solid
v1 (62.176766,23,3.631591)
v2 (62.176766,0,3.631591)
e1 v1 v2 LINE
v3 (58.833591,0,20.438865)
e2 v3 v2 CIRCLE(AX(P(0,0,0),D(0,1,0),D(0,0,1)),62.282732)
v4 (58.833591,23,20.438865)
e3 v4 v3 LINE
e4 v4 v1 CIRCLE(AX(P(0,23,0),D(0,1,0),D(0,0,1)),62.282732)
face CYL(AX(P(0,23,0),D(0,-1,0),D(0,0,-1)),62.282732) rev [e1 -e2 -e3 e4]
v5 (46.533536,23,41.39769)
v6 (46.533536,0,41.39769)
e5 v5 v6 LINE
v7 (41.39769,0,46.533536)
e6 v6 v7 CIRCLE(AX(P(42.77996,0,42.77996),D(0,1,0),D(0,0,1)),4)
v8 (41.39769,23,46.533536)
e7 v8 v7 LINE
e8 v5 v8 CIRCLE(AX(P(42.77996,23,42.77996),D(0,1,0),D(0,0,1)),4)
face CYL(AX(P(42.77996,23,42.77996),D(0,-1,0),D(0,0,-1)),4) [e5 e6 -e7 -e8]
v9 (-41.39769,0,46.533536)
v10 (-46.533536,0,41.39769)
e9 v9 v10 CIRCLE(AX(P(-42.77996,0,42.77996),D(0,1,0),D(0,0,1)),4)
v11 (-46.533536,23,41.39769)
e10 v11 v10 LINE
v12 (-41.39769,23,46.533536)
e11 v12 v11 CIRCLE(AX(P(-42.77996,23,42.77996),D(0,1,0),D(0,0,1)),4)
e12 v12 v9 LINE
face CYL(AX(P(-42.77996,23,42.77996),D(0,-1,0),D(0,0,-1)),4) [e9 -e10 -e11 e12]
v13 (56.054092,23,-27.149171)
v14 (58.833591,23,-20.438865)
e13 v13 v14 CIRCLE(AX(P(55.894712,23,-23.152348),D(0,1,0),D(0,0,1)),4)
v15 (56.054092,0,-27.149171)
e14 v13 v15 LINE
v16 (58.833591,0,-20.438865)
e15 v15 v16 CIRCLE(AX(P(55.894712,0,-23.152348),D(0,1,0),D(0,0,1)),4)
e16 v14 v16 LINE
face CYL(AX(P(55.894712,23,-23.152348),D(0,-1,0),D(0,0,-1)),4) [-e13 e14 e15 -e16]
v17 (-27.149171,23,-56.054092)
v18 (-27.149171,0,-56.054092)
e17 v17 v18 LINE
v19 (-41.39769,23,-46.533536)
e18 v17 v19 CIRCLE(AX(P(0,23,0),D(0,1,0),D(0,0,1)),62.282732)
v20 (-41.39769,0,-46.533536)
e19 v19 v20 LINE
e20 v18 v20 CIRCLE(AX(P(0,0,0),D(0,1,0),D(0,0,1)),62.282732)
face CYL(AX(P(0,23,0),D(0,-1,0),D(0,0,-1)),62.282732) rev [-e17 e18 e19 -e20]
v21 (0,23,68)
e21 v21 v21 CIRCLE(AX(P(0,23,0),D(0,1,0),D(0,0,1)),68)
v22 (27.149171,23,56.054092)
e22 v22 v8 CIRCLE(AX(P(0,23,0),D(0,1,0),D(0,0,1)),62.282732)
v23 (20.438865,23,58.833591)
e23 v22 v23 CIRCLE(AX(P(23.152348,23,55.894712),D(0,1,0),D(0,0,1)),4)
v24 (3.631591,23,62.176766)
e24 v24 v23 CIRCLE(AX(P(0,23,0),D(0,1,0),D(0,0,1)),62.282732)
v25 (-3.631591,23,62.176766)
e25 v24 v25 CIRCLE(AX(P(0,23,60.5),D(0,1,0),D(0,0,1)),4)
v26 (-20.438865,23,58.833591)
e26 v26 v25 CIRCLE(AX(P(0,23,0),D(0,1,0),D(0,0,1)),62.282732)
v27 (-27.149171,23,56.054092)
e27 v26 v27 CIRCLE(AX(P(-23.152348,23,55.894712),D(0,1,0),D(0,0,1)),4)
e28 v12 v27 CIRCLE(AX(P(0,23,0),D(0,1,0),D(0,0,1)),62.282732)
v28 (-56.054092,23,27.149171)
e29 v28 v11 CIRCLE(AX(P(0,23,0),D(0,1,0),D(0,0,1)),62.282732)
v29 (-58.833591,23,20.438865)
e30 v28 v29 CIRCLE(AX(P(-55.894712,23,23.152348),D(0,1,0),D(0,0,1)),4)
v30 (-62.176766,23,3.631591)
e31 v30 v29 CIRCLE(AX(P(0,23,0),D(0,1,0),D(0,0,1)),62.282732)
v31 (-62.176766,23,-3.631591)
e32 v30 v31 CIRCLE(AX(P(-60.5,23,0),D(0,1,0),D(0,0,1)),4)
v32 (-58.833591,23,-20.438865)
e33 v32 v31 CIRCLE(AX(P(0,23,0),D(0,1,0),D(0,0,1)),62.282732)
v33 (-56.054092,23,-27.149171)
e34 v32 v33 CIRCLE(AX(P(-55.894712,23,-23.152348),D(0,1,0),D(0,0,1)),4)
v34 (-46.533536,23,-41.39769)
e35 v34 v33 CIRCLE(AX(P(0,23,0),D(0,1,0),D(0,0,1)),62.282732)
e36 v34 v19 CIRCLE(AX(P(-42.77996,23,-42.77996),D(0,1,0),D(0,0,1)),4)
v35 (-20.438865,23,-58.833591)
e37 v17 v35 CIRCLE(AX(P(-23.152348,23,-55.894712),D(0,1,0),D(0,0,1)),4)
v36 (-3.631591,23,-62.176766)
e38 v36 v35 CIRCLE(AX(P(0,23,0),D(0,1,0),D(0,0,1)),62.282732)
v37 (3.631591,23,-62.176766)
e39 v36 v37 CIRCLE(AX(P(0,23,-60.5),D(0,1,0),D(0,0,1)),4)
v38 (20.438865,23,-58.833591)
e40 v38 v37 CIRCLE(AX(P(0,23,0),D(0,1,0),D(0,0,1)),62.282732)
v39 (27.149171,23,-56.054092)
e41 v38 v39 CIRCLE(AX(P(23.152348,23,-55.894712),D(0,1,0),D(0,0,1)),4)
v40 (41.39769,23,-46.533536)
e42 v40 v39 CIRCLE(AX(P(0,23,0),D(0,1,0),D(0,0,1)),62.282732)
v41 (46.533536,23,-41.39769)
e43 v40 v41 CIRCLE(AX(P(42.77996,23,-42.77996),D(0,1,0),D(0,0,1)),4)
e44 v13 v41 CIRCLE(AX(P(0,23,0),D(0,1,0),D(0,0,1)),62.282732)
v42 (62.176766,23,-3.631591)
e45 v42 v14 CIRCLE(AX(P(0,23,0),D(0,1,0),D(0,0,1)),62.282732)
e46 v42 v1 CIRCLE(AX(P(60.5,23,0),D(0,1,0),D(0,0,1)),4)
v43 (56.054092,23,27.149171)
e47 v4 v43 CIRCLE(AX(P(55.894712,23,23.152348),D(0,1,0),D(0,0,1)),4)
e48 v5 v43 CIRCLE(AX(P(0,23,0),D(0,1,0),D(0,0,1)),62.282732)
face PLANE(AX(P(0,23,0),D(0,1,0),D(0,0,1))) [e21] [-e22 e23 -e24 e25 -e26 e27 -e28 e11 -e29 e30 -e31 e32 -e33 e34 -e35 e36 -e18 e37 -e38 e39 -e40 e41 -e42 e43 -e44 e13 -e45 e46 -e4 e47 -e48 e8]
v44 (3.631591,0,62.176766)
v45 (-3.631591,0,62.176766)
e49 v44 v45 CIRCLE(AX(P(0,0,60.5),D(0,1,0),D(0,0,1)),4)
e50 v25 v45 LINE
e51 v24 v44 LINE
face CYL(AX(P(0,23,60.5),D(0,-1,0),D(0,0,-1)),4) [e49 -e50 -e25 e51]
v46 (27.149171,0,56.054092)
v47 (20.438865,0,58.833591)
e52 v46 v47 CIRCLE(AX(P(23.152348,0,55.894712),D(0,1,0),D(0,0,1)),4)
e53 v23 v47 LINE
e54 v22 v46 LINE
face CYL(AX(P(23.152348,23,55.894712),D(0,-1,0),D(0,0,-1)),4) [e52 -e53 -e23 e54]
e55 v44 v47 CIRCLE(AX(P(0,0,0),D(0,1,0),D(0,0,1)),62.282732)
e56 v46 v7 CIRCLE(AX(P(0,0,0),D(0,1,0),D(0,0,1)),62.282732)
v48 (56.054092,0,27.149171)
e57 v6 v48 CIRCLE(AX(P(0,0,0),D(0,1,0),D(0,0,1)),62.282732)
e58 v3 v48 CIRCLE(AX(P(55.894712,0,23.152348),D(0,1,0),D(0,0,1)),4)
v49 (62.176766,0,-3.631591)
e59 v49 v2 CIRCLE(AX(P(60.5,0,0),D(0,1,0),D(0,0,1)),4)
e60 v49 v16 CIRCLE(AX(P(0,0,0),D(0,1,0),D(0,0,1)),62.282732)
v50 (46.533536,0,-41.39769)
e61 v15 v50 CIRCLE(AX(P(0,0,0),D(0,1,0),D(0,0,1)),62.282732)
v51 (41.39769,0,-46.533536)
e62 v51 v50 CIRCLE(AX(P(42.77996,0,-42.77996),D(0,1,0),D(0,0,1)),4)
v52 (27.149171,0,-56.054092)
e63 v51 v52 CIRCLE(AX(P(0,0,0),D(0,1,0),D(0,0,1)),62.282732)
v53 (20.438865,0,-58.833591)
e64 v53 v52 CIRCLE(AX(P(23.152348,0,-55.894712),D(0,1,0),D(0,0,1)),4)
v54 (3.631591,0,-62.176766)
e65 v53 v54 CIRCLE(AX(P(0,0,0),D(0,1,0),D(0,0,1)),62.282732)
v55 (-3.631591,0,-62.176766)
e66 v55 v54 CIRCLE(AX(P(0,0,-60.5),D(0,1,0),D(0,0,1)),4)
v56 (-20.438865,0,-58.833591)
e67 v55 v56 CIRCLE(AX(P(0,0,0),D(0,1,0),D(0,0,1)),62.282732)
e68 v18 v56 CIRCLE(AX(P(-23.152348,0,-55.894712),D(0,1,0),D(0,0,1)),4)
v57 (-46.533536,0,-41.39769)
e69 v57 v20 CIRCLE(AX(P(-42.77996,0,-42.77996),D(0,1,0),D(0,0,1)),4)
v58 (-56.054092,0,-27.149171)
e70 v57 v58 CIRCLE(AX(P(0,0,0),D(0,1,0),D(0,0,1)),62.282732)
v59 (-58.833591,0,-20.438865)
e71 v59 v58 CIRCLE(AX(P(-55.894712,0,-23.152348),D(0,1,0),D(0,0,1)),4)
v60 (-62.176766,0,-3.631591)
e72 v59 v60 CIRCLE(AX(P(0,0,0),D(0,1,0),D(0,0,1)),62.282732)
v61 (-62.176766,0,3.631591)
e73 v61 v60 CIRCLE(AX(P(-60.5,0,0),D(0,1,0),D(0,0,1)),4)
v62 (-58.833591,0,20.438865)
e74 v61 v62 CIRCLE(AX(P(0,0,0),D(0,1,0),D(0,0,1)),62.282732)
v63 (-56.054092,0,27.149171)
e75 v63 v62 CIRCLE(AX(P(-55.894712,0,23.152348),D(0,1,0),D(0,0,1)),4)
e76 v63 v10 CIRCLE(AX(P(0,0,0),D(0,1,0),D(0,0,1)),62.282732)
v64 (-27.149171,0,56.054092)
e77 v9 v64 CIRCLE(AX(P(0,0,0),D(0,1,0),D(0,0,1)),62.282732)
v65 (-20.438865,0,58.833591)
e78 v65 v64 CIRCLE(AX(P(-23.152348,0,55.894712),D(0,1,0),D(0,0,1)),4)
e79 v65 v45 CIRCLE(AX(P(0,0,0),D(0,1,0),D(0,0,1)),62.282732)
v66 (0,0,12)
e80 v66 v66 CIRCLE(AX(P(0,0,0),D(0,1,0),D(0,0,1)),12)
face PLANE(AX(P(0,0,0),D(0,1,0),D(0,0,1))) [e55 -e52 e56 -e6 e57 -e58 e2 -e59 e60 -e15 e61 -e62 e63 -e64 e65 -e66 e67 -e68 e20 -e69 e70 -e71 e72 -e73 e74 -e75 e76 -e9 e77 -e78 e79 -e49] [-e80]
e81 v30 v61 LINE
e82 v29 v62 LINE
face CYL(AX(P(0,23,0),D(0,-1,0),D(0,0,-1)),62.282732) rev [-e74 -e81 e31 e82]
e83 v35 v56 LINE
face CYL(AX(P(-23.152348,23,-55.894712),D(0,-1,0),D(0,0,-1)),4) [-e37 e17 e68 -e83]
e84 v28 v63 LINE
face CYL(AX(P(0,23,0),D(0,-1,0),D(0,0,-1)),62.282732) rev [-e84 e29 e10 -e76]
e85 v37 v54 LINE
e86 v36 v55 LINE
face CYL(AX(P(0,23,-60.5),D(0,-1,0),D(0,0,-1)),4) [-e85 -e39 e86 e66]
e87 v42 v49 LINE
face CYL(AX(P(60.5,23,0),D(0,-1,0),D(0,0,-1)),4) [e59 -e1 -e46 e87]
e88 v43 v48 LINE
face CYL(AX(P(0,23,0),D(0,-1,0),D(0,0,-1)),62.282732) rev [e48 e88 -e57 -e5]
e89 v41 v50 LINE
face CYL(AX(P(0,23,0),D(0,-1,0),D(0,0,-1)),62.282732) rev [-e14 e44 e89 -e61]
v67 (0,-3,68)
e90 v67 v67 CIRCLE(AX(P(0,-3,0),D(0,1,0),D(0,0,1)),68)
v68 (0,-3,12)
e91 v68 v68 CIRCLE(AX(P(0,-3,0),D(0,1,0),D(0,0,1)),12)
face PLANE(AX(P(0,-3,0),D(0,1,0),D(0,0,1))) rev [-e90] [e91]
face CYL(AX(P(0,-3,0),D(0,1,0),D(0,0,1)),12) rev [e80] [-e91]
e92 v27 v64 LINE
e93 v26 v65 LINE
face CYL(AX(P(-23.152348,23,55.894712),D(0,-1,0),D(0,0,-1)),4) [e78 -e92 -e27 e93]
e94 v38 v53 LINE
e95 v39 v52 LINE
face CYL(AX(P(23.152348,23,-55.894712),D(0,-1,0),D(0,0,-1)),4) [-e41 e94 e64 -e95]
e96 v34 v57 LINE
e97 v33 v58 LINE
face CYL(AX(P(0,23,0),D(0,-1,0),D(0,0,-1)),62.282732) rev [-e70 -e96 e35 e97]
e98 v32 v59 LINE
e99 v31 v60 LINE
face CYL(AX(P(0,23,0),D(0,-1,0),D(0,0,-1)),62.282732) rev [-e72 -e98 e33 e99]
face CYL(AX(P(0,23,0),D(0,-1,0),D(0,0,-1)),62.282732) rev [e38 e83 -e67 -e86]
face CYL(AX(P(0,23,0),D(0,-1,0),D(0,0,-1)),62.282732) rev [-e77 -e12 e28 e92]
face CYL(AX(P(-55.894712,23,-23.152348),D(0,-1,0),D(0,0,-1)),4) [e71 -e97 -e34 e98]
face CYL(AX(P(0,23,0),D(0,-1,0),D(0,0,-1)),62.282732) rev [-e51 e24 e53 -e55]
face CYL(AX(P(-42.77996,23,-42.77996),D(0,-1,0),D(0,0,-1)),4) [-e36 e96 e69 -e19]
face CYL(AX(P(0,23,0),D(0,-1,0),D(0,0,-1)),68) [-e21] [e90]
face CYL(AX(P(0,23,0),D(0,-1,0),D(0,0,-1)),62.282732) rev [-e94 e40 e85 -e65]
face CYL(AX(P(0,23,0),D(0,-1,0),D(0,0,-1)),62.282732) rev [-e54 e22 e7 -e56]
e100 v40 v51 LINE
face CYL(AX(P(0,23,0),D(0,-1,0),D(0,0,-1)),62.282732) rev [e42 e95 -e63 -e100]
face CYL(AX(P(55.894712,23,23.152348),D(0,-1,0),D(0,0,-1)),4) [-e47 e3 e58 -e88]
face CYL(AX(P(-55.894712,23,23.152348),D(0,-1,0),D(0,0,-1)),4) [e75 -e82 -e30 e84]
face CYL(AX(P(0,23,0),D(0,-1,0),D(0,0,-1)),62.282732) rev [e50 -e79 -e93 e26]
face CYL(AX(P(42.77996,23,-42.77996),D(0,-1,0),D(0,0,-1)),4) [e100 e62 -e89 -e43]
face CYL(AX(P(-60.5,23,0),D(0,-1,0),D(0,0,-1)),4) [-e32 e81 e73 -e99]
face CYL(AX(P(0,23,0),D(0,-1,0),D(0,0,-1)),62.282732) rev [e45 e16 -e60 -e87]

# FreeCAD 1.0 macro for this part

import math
import FreeCAD as App
import Part
import Sketcher

V = App.Vector
Q = App.Units.Quantity

doc = App.newDocument("Part")
body = doc.addObject("PartDesign::Body", "Body")

# Sketch on XZ plane
sketch1 = doc.addObject("Sketcher::SketchObject", "Sketch")
body.addObject(sketch1)
sketch1.AttachmentSupport = (doc.XZ_Plane, [""])
sketch1.MapMode = "FlatFace"
sketch1.addGeometry([
    Part.Circle(V(0, 0, 0), V(0, 0, 1), 68),  # 0
    Part.ArcOfCircle(Part.Circle(V(0, -60.5, 0), V(0, 0, 1), 4), math.radians(-25), math.radians(205)),  # 1
    Part.ArcOfCircle(Part.Circle(V(0, 0, 0), V(0, 0, 1), 62.3), math.radians(-86.66), math.radians(-70.84)),  # 2
    Part.ArcOfCircle(Part.Circle(V(23.2, -55.9, 0), V(0, 0, 1), 4), math.radians(-2), math.radians(227)),  # 3
    Part.ArcOfCircle(Part.Circle(V(0, 0, 0), V(0, 0, 1), 62.3), math.radians(-64.16), math.radians(-48.34)),  # 4
    Part.ArcOfCircle(Part.Circle(V(42.8, -42.8, 0), V(0, 0, 1), 4), math.radians(20), math.radians(250)),  # 5
    Part.ArcOfCircle(Part.Circle(V(0, 0, 0), V(0, 0, 1), 62.3), math.radians(-41.66), math.radians(-25.84)),  # 6
    Part.ArcOfCircle(Part.Circle(V(55.9, -23.2, 0), V(0, 0, 1), 4), math.radians(43), math.radians(272)),  # 7
    Part.ArcOfCircle(Part.Circle(V(0, 0, 0), V(0, 0, 1), 62.3), math.radians(-19.16), math.radians(-3.34)),  # 8
    Part.ArcOfCircle(Part.Circle(V(60.5, 0, 0), V(0, 0, 1), 4), math.radians(65), math.radians(295)),  # 9
    Part.ArcOfCircle(Part.Circle(V(0, 0, 0), V(0, 0, 1), 62.3), math.radians(3.34), math.radians(19.16)),  # 10
    Part.ArcOfCircle(Part.Circle(V(55.9, 23.2, 0), V(0, 0, 1), 4), math.radians(88), math.radians(317)),  # 11
    Part.ArcOfCircle(Part.Circle(V(0, 0, 0), V(0, 0, 1), 62.3), math.radians(25.84), math.radians(41.66)),  # 12
    Part.ArcOfCircle(Part.Circle(V(42.8, 42.8, 0), V(0, 0, 1), 4), math.radians(110), math.radians(340)),  # 13
    Part.ArcOfCircle(Part.Circle(V(0, 0, 0), V(0, 0, 1), 62.3), math.radians(48.34), math.radians(64.16)),  # 14
    Part.ArcOfCircle(Part.Circle(V(23.2, 55.9, 0), V(0, 0, 1), 4), math.radians(133), math.radians(362)),  # 15
    Part.ArcOfCircle(Part.Circle(V(0, 0, 0), V(0, 0, 1), 62.3), math.radians(70.84), math.radians(86.66)),  # 16
    Part.ArcOfCircle(Part.Circle(V(0, 60.5, 0), V(0, 0, 1), 4), math.radians(155), math.radians(385)),  # 17
    Part.ArcOfCircle(Part.Circle(V(0, 0, 0), V(0, 0, 1), 62.3), math.radians(93.34), math.radians(109.16)),  # 18
    Part.ArcOfCircle(Part.Circle(V(-23.2, 55.9, 0), V(0, 0, 1), 4), math.radians(178), math.radians(407)),  # 19
    Part.ArcOfCircle(Part.Circle(V(0, 0, 0), V(0, 0, 1), 62.3), math.radians(115.84), math.radians(131.66)),  # 20
    Part.ArcOfCircle(Part.Circle(V(-42.8, 42.8, 0), V(0, 0, 1), 4), math.radians(-160), math.radians(70)),  # 21
    Part.ArcOfCircle(Part.Circle(V(0, 0, 0), V(0, 0, 1), 62.3), math.radians(138.34), math.radians(154.16)),  # 22
    Part.ArcOfCircle(Part.Circle(V(-55.9, 23.2, 0), V(0, 0, 1), 4), math.radians(-137), math.radians(92)),  # 23
    Part.ArcOfCircle(Part.Circle(V(0, 0, 0), V(0, 0, 1), 62.3), math.radians(160.84), math.radians(176.66)),  # 24
    Part.ArcOfCircle(Part.Circle(V(-60.5, 0, 0), V(0, 0, 1), 4), math.radians(-115), math.radians(115)),  # 25
    Part.ArcOfCircle(Part.Circle(V(0, 0, 0), V(0, 0, 1), 62.3), math.radians(-176.66), math.radians(-160.84)),  # 26
    Part.ArcOfCircle(Part.Circle(V(-55.9, -23.2, 0), V(0, 0, 1), 4), math.radians(-92), math.radians(137)),  # 27
    Part.ArcOfCircle(Part.Circle(V(0, 0, 0), V(0, 0, 1), 62.3), math.radians(-154.16), math.radians(-138.34)),  # 28
    Part.ArcOfCircle(Part.Circle(V(-42.8, -42.8, 0), V(0, 0, 1), 4), math.radians(-70), math.radians(160)),  # 29
    Part.ArcOfCircle(Part.Circle(V(0, 0, 0), V(0, 0, 1), 62.3), math.radians(-131.66), math.radians(-115.84)),  # 30
    Part.ArcOfCircle(Part.Circle(V(-23.2, -55.9, 0), V(0, 0, 1), 4), math.radians(-47), math.radians(182)),  # 31
    Part.ArcOfCircle(Part.Circle(V(0, 0, 0), V(0, 0, 1), 62.3), math.radians(-109.16), math.radians(-93.34)),  # 32
], False)
sketch1.addConstraint([
    Sketcher.Constraint("Coincident", 1, 1, 2, 1),
    Sketcher.Constraint("Coincident", 2, 2, 3, 2),
    Sketcher.Constraint("Coincident", 3, 1, 4, 1),
    Sketcher.Constraint("Coincident", 4, 2, 5, 2),
    Sketcher.Constraint("Coincident", 5, 1, 6, 1),
    Sketcher.Constraint("Coincident", 6, 2, 7, 2),
    Sketcher.Constraint("Coincident", 7, 1, 8, 1),
    Sketcher.Constraint("Coincident", 8, 2, 9, 2),
    Sketcher.Constraint("Coincident", 9, 1, 10, 1),
    Sketcher.Constraint("Coincident", 10, 2, 11, 2),
    Sketcher.Constraint("Coincident", 11, 1, 12, 1),
    Sketcher.Constraint("Coincident", 12, 2, 13, 2),
    Sketcher.Constraint("Coincident", 13, 1, 14, 1),
    Sketcher.Constraint("Coincident", 14, 2, 15, 2),
    Sketcher.Constraint("Coincident", 15, 1, 16, 1),
    Sketcher.Constraint("Coincident", 16, 2, 17, 2),
    Sketcher.Constraint("Coincident", 17, 1, 18, 1),
    Sketcher.Constraint("Coincident", 18, 2, 19, 2),
    Sketcher.Constraint("Coincident", 19, 1, 20, 1),
    Sketcher.Constraint("Coincident", 20, 2, 21, 2),
    Sketcher.Constraint("Coincident", 21, 1, 22, 1),
    Sketcher.Constraint("Coincident", 22, 2, 23, 2),
    Sketcher.Constraint("Coincident", 23, 1, 24, 1),
    Sketcher.Constraint("Coincident", 24, 2, 25, 2),
    Sketcher.Constraint("Coincident", 25, 1, 26, 1),
    Sketcher.Constraint("Coincident", 26, 2, 27, 2),
    Sketcher.Constraint("Coincident", 27, 1, 28, 1),
    Sketcher.Constraint("Coincident", 28, 2, 29, 2),
    Sketcher.Constraint("Coincident", 29, 1, 30, 1),
    Sketcher.Constraint("Coincident", 30, 2, 31, 2),
    Sketcher.Constraint("Coincident", 31, 1, 32, 1),
    Sketcher.Constraint("Coincident", 32, 2, 1, 2),
    Sketcher.Constraint("Coincident", 0, 3, -1, 1),
    Sketcher.Constraint("Coincident", 2, 3, -1, 1),
    Sketcher.Constraint("Coincident", 4, 3, -1, 1),
    Sketcher.Constraint("Coincident", 6, 3, -1, 1),
    Sketcher.Constraint("Coincident", 8, 3, -1, 1),
    Sketcher.Constraint("Coincident", 10, 3, -1, 1),
    Sketcher.Constraint("Coincident", 12, 3, -1, 1),
    Sketcher.Constraint("Coincident", 14, 3, -1, 1),
    Sketcher.Constraint("Coincident", 16, 3, -1, 1),
    Sketcher.Constraint("Coincident", 18, 3, -1, 1),
    Sketcher.Constraint("Coincident", 20, 3, -1, 1),
    Sketcher.Constraint("Coincident", 22, 3, -1, 1),
    Sketcher.Constraint("Coincident", 24, 3, -1, 1),
    Sketcher.Constraint("Coincident", 26, 3, -1, 1),
    Sketcher.Constraint("Coincident", 28, 3, -1, 1),
    Sketcher.Constraint("Coincident", 30, 3, -1, 1),
    Sketcher.Constraint("Coincident", 32, 3, -1, 1),
    Sketcher.Constraint("Equal", 1, 3),
    Sketcher.Constraint("Equal", 2, 4),
    Sketcher.Constraint("Equal", 3, 5),
    Sketcher.Constraint("Equal", 4, 6),
    Sketcher.Constraint("Equal", 5, 7),
    Sketcher.Constraint("Equal", 6, 8),
    Sketcher.Constraint("Equal", 7, 9),
    Sketcher.Constraint("Equal", 8, 10),
    Sketcher.Constraint("Equal", 9, 11),
    Sketcher.Constraint("Equal", 10, 12),
    Sketcher.Constraint("Equal", 11, 13),
    Sketcher.Constraint("Equal", 12, 14),
    Sketcher.Constraint("Equal", 13, 15),
    Sketcher.Constraint("Equal", 14, 16),
    Sketcher.Constraint("Equal", 15, 17),
    Sketcher.Constraint("Equal", 16, 18),
    Sketcher.Constraint("Equal", 17, 19),
    Sketcher.Constraint("Equal", 18, 20),
    Sketcher.Constraint("Equal", 19, 21),
    Sketcher.Constraint("Equal", 20, 22),
    Sketcher.Constraint("Equal", 21, 23),
    Sketcher.Constraint("Equal", 22, 24),
    Sketcher.Constraint("Equal", 23, 25),
    Sketcher.Constraint("Equal", 24, 26),
    Sketcher.Constraint("Equal", 25, 27),
    Sketcher.Constraint("Equal", 26, 28),
    Sketcher.Constraint("Equal", 27, 29),
    Sketcher.Constraint("Equal", 28, 30),
    Sketcher.Constraint("Equal", 29, 31),
    Sketcher.Constraint("Equal", 30, 32),
    Sketcher.Constraint("Symmetric", 1, 3, 17, 3, -1, 1),
    Sketcher.Constraint("Symmetric", 3, 3, 19, 3, -1, 1),
    Sketcher.Constraint("Symmetric", 5, 3, 21, 3, -1, 1),
    Sketcher.Constraint("Symmetric", 7, 3, 23, 3, -1, 1),
    Sketcher.Constraint("Symmetric", 9, 3, 25, 3, -1, 1),
    Sketcher.Constraint("Symmetric", 11, 3, 27, 3, -1, 1),
    Sketcher.Constraint("Symmetric", 13, 3, 29, 3, -1, 1),
    Sketcher.Constraint("Symmetric", 15, 3, 31, 3, -1, 1),
    Sketcher.Constraint("Symmetric", 15, 3, 19, 3, -2),
    Sketcher.Constraint("Symmetric", 13, 3, 21, 3, -2),
    Sketcher.Constraint("Symmetric", 11, 3, 23, 3, -2),
    Sketcher.Constraint("PointOnObject", 1, 3, -2),
    Sketcher.Constraint("PointOnObject", 9, 3, -1),
    Sketcher.Constraint("Diameter", 0, Q("136 mm")),
    Sketcher.Constraint("Radius", 1, Q("4 mm")),
    Sketcher.Constraint("DistanceY", 1, 3, -1, 1, Q("60.5 mm")),
    Sketcher.Constraint("DistanceX", -1, 1, 9, 3, Q("60.5 mm")),
    Sketcher.Constraint("Radius", 2, Q("62.282732 mm")),
    Sketcher.Constraint("DistanceY", 3, 3, -1, 1, Q("55.894712 mm")),
    Sketcher.Constraint("DistanceX", -1, 1, 5, 3, Q("42.77996 mm")),
    Sketcher.Constraint("DistanceY", 5, 3, -1, 1, Q("42.77996 mm")),
    Sketcher.Constraint("DistanceX", -1, 1, 7, 3, Q("55.894712 mm")),
    Sketcher.Constraint("DistanceY", 2, 2, -1, 1, Q("58.833591 mm")),
    Sketcher.Constraint("DistanceX", -1, 1, 6, 2, Q("56.054092 mm")),
])
pad1 = doc.addObject("PartDesign::Pad", "Pad")
body.addObject(pad1)
pad1.Profile = sketch1
pad1.Length = 23
pad1.Reversed = True

# Sketch on XZ plane
sketch2 = doc.addObject("Sketcher::SketchObject", "Sketch001")
body.addObject(sketch2)
sketch2.AttachmentSupport = (doc.XZ_Plane, [""])
sketch2.MapMode = "FlatFace"
sketch2.AttachmentOffset = App.Placement(V(0, 0, 3), App.Rotation())
sketch2.addGeometry([
    Part.Circle(V(0, 0, 0), V(0, 0, 1), 68),
    Part.Circle(V(0, 0, 0), V(0, 0, 1), 12),
], False)
sketch2.addConstraint([
    Sketcher.Constraint("Coincident", 0, 3, -1, 1),
    Sketcher.Constraint("Coincident", 1, 3, -1, 1),
    Sketcher.Constraint("Diameter", 0, Q("136 mm")),
    Sketcher.Constraint("Diameter", 1, Q("24 mm")),
])
pad2 = doc.addObject("PartDesign::Pad", "Pad001")
body.addObject(pad2)
pad2.Profile = sketch2
pad2.Length = 3
pad2.Reversed = True

doc.recompute()
